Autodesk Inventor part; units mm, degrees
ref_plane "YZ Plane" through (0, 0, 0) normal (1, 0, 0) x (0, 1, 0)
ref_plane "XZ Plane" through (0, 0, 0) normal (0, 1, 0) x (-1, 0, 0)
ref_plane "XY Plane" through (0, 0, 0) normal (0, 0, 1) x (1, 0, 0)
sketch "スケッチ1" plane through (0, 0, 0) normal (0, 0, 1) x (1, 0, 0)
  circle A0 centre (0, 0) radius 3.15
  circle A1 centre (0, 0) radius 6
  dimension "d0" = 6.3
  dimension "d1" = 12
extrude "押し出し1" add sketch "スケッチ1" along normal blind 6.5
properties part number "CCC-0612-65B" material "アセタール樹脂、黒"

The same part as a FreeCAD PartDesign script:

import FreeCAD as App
import Part
import Sketcher
Q = App.Units.Quantity

doc = App.newDocument("Part")
body = doc.addObject("PartDesign::Body", "Body")

# Sketch on XY plane
sketch1 = doc.addObject("Sketcher::SketchObject", "Sketch")
body.addObject(sketch1)
sketch1.AttachmentSupport = (doc.XY_Plane, [""])
sketch1.MapMode = "FlatFace"
sketch1.addGeometry([
    Part.Circle(App.Vector(0, 0, 0), App.Vector(0, 0, 1), 6),
    Part.Circle(App.Vector(0, 0, 0), App.Vector(0, 0, 1), 3.1),
], False)
sketch1.addConstraint([
    Sketcher.Constraint("Coincident", 0, 3, -1, 1),
    Sketcher.Constraint("Coincident", 1, 3, -1, 1),
    Sketcher.Constraint("Diameter", 0, Q("12 mm")),
    Sketcher.Constraint("Diameter", 1, Q("6.3 mm")),
])
pad1 = doc.addObject("PartDesign::Pad", "Pad")
body.addObject(pad1)
pad1.Profile = sketch1
pad1.Length = 6.5

doc.recompute()
